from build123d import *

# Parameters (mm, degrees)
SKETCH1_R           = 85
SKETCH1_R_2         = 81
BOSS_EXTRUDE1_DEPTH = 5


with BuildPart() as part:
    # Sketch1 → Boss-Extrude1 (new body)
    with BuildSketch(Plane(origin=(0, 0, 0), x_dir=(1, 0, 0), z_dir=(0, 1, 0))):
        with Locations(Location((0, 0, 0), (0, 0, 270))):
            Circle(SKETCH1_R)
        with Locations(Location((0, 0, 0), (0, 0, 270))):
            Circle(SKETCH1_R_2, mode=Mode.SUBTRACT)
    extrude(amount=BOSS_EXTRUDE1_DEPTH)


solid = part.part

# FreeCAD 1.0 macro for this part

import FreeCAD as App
import Part
import Sketcher
Q = App.Units.Quantity

doc = App.newDocument("Part")
body = doc.addObject("PartDesign::Body", "Body")

# Sketch on XZ plane
sketch1 = doc.addObject("Sketcher::SketchObject", "Sketch")
body.addObject(sketch1)
sketch1.AttachmentSupport = (doc.XZ_Plane, [""])
sketch1.MapMode = "FlatFace"
sketch1.addGeometry(Part.Circle(App.Vector(0, 0, 0), App.Vector(0, 0, 1), 85), False)
sketch1.addGeometry(Part.Circle(App.Vector(0, 0, 0), App.Vector(0, 0, 1), 81), False)
sketch1.addConstraint(Sketcher.Constraint("Coincident", 0, 3, -1, 1))
sketch1.addConstraint(Sketcher.Constraint("Coincident", 1, 3, -1, 1))
sketch1.addConstraint(Sketcher.Constraint("Diameter", 0, Q("170 mm")))
sketch1.addConstraint(Sketcher.Constraint("Diameter", 1, Q("162 mm")))
pad1 = doc.addObject("PartDesign::Pad", "Pad")
body.addObject(pad1)
pad1.Profile = sketch1
pad1.Length = 5
pad1.Reversed = True

doc.recompute()
